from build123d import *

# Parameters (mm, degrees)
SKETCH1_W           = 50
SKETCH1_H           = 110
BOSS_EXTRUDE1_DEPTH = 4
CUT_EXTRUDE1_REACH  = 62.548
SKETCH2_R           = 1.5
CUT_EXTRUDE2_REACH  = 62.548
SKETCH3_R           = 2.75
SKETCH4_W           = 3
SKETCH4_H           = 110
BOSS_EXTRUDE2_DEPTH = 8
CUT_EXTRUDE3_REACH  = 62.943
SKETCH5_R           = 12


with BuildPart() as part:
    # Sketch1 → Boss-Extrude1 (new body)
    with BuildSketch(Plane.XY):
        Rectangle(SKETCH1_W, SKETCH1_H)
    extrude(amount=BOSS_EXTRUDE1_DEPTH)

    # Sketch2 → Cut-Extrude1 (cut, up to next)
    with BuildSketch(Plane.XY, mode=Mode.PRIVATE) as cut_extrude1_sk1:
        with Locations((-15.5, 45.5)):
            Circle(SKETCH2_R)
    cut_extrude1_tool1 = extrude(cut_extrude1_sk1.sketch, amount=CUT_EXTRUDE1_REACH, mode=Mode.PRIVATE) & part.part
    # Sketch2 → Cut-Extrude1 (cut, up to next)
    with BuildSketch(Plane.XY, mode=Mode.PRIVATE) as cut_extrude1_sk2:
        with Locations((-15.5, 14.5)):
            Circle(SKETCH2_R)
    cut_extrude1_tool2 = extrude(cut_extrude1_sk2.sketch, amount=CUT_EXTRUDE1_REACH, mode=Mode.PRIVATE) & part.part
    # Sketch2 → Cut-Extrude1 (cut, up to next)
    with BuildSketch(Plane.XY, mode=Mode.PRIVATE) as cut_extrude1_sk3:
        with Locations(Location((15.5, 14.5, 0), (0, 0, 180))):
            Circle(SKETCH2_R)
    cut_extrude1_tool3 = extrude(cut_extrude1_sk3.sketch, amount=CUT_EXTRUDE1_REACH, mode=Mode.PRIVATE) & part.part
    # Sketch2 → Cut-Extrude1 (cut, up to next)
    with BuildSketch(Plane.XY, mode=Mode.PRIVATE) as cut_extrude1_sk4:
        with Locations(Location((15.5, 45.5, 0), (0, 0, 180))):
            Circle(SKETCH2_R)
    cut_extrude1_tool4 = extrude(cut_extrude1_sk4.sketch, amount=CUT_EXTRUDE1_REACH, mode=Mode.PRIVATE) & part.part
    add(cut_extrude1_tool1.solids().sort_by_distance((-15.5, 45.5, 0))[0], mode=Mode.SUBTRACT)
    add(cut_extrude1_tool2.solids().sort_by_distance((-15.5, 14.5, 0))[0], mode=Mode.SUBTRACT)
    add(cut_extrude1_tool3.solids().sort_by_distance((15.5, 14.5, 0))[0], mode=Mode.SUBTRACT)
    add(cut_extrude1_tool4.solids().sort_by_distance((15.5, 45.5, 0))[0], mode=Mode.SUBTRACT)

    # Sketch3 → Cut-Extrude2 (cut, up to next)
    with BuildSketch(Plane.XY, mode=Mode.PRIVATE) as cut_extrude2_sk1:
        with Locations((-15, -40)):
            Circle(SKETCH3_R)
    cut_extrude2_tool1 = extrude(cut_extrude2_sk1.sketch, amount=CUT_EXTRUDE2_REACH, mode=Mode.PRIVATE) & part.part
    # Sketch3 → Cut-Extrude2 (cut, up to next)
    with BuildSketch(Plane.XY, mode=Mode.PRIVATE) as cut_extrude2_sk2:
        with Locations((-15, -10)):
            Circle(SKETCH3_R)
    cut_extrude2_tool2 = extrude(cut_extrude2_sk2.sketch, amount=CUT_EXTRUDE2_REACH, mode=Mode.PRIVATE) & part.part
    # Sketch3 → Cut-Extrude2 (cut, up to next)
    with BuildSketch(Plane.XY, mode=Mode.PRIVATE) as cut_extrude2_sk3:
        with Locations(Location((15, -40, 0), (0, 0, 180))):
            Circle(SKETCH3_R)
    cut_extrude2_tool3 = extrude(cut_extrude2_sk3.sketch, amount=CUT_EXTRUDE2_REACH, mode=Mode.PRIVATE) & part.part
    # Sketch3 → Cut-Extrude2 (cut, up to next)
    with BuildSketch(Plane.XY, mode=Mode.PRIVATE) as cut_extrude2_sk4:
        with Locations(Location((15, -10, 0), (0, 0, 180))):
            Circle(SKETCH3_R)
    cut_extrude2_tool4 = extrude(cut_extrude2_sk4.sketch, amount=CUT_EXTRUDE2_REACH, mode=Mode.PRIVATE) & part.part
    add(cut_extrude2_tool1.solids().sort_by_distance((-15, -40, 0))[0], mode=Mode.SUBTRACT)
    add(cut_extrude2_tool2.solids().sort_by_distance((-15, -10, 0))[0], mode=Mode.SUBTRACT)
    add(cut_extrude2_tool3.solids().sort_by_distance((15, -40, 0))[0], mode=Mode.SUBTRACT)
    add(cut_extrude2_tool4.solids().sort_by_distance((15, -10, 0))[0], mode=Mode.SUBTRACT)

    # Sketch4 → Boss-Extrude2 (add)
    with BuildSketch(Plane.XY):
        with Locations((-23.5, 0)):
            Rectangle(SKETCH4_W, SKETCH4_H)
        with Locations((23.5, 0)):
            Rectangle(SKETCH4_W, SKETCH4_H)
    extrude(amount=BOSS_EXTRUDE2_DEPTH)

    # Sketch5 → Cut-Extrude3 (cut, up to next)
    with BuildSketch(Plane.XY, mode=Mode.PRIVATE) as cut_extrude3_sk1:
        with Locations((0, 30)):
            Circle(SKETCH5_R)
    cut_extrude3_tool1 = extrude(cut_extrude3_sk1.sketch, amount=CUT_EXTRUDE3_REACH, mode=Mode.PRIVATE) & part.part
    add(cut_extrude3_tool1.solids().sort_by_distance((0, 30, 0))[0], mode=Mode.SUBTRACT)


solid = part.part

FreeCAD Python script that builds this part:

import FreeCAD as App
import Part
import Sketcher

V = App.Vector

doc = App.newDocument("Part")
body = doc.addObject("PartDesign::Body", "Body")

sketch1 = body.newObject("Sketcher::SketchObject", "Sketch")
sketch1.AttachmentSupport = (doc.getObject("XY_Plane"), [""])
sketch1.MapMode = "FlatFace"
sketch1.addGeometry([
    Part.LineSegment(V(-25, 55, 0), V(-25, -55, 0)),
    Part.LineSegment(V(-25, -55, 0), V(25, -55, 0)),
    Part.LineSegment(V(25, -55, 0), V(25, 55, 0)),
    Part.LineSegment(V(25, 55, 0), V(-25, 55, 0)),
], False)
sketch1.addConstraint([
    Sketcher.Constraint("Coincident", 0, 2, 1, 1),
    Sketcher.Constraint("Coincident", 1, 2, 2, 1),
    Sketcher.Constraint("Coincident", 2, 2, 3, 1),
    Sketcher.Constraint("Coincident", 3, 2, 0, 1),
    Sketcher.Constraint("Vertical", 0),
    Sketcher.Constraint("Horizontal", 1),
    Sketcher.Constraint("Vertical", 2),
    Sketcher.Constraint("Horizontal", 3),
    Sketcher.Constraint("Symmetric", 0, 2, 2, 2, -1, 1),
    Sketcher.Constraint("DistanceX", 1, 1, 1, 2, 50.0),
    Sketcher.Constraint("DistanceY", 0, 2, 0, 1, 110.0),
])
pad1 = body.newObject("PartDesign::Pad", "Pad")
pad1.Profile = sketch1
pad1.Length = 4

sketch2 = body.newObject("Sketcher::SketchObject", "Sketch001")
sketch2.AttachmentSupport = (doc.getObject("XY_Plane"), [""])
sketch2.MapMode = "FlatFace"
sketch2.addGeometry(Part.Circle(V(-15.5, 45.5, 0), V(0, 0, 1), 1.5), False)
sketch2.addConstraint([
    Sketcher.Constraint("Diameter", 0, 3.0),
    Sketcher.Constraint("DistanceX", 0, 3, -1, 1, 15.5),
    Sketcher.Constraint("DistanceY", -1, 1, 0, 3, 45.5),
])
pocket1 = body.newObject("PartDesign::Pocket", "Pocket")
pocket1.Profile = sketch2
pocket1.Type = "UpToFirst"
pocket1.Reversed = True

sketch3 = body.newObject("Sketcher::SketchObject", "Sketch002")
sketch3.AttachmentSupport = (doc.getObject("XY_Plane"), [""])
sketch3.MapMode = "FlatFace"
sketch3.addGeometry(Part.Circle(V(-15.5, 14.5, 0), V(0, 0, 1), 1.5), False)
sketch3.addConstraint([
    Sketcher.Constraint("Diameter", 0, 3.0),
    Sketcher.Constraint("DistanceX", 0, 3, -1, 1, 15.5),
    Sketcher.Constraint("DistanceY", -1, 1, 0, 3, 14.5),
])
pocket2 = body.newObject("PartDesign::Pocket", "Pocket001")
pocket2.Profile = sketch3
pocket2.Type = "UpToFirst"
pocket2.Reversed = True

sketch4 = body.newObject("Sketcher::SketchObject", "Sketch003")
sketch4.AttachmentSupport = (doc.getObject("XY_Plane"), [""])
sketch4.MapMode = "FlatFace"
sketch4.addGeometry(Part.Circle(V(15.5, 14.5, 0), V(0, 0, 1), 1.5), False)
sketch4.addConstraint([
    Sketcher.Constraint("Diameter", 0, 3.0),
    Sketcher.Constraint("DistanceX", -1, 1, 0, 3, 15.5),
    Sketcher.Constraint("DistanceY", -1, 1, 0, 3, 14.5),
])
pocket3 = body.newObject("PartDesign::Pocket", "Pocket002")
pocket3.Profile = sketch4
pocket3.Type = "UpToFirst"
pocket3.Reversed = True

sketch5 = body.newObject("Sketcher::SketchObject", "Sketch004")
sketch5.AttachmentSupport = (doc.getObject("XY_Plane"), [""])
sketch5.MapMode = "FlatFace"
sketch5.addGeometry(Part.Circle(V(15.5, 45.5, 0), V(0, 0, 1), 1.5), False)
sketch5.addConstraint([
    Sketcher.Constraint("Diameter", 0, 3.0),
    Sketcher.Constraint("DistanceX", -1, 1, 0, 3, 15.5),
    Sketcher.Constraint("DistanceY", -1, 1, 0, 3, 45.5),
])
pocket4 = body.newObject("PartDesign::Pocket", "Pocket003")
pocket4.Profile = sketch5
pocket4.Type = "UpToFirst"
pocket4.Reversed = True

sketch6 = body.newObject("Sketcher::SketchObject", "Sketch005")
sketch6.AttachmentSupport = (doc.getObject("XY_Plane"), [""])
sketch6.MapMode = "FlatFace"
sketch6.addGeometry(Part.Circle(V(-15, -40, 0), V(0, 0, 1), 2.8), False)
sketch6.addConstraint([
    Sketcher.Constraint("Diameter", 0, 5.5),
    Sketcher.Constraint("DistanceX", 0, 3, -1, 1, 15.0),
    Sketcher.Constraint("DistanceY", 0, 3, -1, 1, 40.0),
])
pocket5 = body.newObject("PartDesign::Pocket", "Pocket004")
pocket5.Profile = sketch6
pocket5.Type = "UpToFirst"
pocket5.Reversed = True

sketch7 = body.newObject("Sketcher::SketchObject", "Sketch006")
sketch7.AttachmentSupport = (doc.getObject("XY_Plane"), [""])
sketch7.MapMode = "FlatFace"
sketch7.addGeometry(Part.Circle(V(-15, -10, 0), V(0, 0, 1), 2.8), False)
sketch7.addConstraint([
    Sketcher.Constraint("Diameter", 0, 5.5),
    Sketcher.Constraint("DistanceX", 0, 3, -1, 1, 15.0),
    Sketcher.Constraint("DistanceY", 0, 3, -1, 1, 10.0),
])
pocket6 = body.newObject("PartDesign::Pocket", "Pocket005")
pocket6.Profile = sketch7
pocket6.Type = "UpToFirst"
pocket6.Reversed = True

sketch8 = body.newObject("Sketcher::SketchObject", "Sketch007")
sketch8.AttachmentSupport = (doc.getObject("XY_Plane"), [""])
sketch8.MapMode = "FlatFace"
sketch8.addGeometry(Part.Circle(V(15, -40, 0), V(0, 0, 1), 2.8), False)
sketch8.addConstraint([
    Sketcher.Constraint("Diameter", 0, 5.5),
    Sketcher.Constraint("DistanceX", -1, 1, 0, 3, 15.0),
    Sketcher.Constraint("DistanceY", 0, 3, -1, 1, 40.0),
])
pocket7 = body.newObject("PartDesign::Pocket", "Pocket006")
pocket7.Profile = sketch8
pocket7.Type = "UpToFirst"
pocket7.Reversed = True

sketch9 = body.newObject("Sketcher::SketchObject", "Sketch008")
sketch9.AttachmentSupport = (doc.getObject("XY_Plane"), [""])
sketch9.MapMode = "FlatFace"
sketch9.addGeometry(Part.Circle(V(15, -10, 0), V(0, 0, 1), 2.8), False)
sketch9.addConstraint([
    Sketcher.Constraint("Diameter", 0, 5.5),
    Sketcher.Constraint("DistanceX", -1, 1, 0, 3, 15.0),
    Sketcher.Constraint("DistanceY", 0, 3, -1, 1, 10.0),
])
pocket8 = body.newObject("PartDesign::Pocket", "Pocket007")
pocket8.Profile = sketch9
pocket8.Type = "UpToFirst"
pocket8.Reversed = True

sketch10 = body.newObject("Sketcher::SketchObject", "Sketch009")
sketch10.AttachmentSupport = (doc.getObject("XY_Plane"), [""])
sketch10.MapMode = "FlatFace"
sketch10.addGeometry([
    Part.LineSegment(V(-25, 55, 0), V(-25, -55, 0)),
    Part.LineSegment(V(-25, -55, 0), V(-22, -55, 0)),
    Part.LineSegment(V(-22, -55, 0), V(-22, 55, 0)),
    Part.LineSegment(V(-22, 55, 0), V(-25, 55, 0)),
    Part.LineSegment(V(22, 55, 0), V(22, -55, 0)),
    Part.LineSegment(V(22, -55, 0), V(25, -55, 0)),
    Part.LineSegment(V(25, -55, 0), V(25, 55, 0)),
    Part.LineSegment(V(25, 55, 0), V(22, 55, 0)),
], False)
sketch10.addConstraint([
    Sketcher.Constraint("Coincident", 0, 2, 1, 1),
    Sketcher.Constraint("Coincident", 1, 2, 2, 1),
    Sketcher.Constraint("Coincident", 2, 2, 3, 1),
    Sketcher.Constraint("Coincident", 3, 2, 0, 1),
    Sketcher.Constraint("Coincident", 4, 2, 5, 1),
    Sketcher.Constraint("Coincident", 5, 2, 6, 1),
    Sketcher.Constraint("Coincident", 6, 2, 7, 1),
    Sketcher.Constraint("Coincident", 7, 2, 4, 1),
    Sketcher.Constraint("Vertical", 0),
    Sketcher.Constraint("Horizontal", 1),
    Sketcher.Constraint("Vertical", 2),
    Sketcher.Constraint("Horizontal", 3),
    Sketcher.Constraint("Vertical", 4),
    Sketcher.Constraint("Horizontal", 5),
    Sketcher.Constraint("Vertical", 6),
    Sketcher.Constraint("Horizontal", 7),
    Sketcher.Constraint("Symmetric", 2, 2, 4, 2, -1, 1),
    Sketcher.Constraint("Symmetric", 0, 2, 6, 2, -1, 1),
    Sketcher.Constraint("Horizontal", 1, 2, 4, 2),
    Sketcher.Constraint("DistanceX", 1, 1, 1, 2, 3.0),
    Sketcher.Constraint("DistanceY", 0, 2, 0, 1, 110.0),
    Sketcher.Constraint("DistanceX", 0, 2, -1, 1, 25.0),
])
pad2 = body.newObject("PartDesign::Pad", "Pad001")
pad2.Profile = sketch10
pad2.Length = 8

sketch11 = body.newObject("Sketcher::SketchObject", "Sketch010")
sketch11.AttachmentSupport = (doc.getObject("XY_Plane"), [""])
sketch11.MapMode = "FlatFace"
sketch11.addGeometry(Part.Circle(V(0, 30, 0), V(0, 0, 1), 12), False)
sketch11.addConstraint([
    Sketcher.Constraint("PointOnObject", 0, 3, -2),
    Sketcher.Constraint("Diameter", 0, 24.0),
    Sketcher.Constraint("DistanceY", -1, 1, 0, 3, 30.0),
])
pocket9 = body.newObject("PartDesign::Pocket", "Pocket008")
pocket9.Profile = sketch11
pocket9.Type = "UpToFirst"
pocket9.Reversed = True

doc.recompute()
